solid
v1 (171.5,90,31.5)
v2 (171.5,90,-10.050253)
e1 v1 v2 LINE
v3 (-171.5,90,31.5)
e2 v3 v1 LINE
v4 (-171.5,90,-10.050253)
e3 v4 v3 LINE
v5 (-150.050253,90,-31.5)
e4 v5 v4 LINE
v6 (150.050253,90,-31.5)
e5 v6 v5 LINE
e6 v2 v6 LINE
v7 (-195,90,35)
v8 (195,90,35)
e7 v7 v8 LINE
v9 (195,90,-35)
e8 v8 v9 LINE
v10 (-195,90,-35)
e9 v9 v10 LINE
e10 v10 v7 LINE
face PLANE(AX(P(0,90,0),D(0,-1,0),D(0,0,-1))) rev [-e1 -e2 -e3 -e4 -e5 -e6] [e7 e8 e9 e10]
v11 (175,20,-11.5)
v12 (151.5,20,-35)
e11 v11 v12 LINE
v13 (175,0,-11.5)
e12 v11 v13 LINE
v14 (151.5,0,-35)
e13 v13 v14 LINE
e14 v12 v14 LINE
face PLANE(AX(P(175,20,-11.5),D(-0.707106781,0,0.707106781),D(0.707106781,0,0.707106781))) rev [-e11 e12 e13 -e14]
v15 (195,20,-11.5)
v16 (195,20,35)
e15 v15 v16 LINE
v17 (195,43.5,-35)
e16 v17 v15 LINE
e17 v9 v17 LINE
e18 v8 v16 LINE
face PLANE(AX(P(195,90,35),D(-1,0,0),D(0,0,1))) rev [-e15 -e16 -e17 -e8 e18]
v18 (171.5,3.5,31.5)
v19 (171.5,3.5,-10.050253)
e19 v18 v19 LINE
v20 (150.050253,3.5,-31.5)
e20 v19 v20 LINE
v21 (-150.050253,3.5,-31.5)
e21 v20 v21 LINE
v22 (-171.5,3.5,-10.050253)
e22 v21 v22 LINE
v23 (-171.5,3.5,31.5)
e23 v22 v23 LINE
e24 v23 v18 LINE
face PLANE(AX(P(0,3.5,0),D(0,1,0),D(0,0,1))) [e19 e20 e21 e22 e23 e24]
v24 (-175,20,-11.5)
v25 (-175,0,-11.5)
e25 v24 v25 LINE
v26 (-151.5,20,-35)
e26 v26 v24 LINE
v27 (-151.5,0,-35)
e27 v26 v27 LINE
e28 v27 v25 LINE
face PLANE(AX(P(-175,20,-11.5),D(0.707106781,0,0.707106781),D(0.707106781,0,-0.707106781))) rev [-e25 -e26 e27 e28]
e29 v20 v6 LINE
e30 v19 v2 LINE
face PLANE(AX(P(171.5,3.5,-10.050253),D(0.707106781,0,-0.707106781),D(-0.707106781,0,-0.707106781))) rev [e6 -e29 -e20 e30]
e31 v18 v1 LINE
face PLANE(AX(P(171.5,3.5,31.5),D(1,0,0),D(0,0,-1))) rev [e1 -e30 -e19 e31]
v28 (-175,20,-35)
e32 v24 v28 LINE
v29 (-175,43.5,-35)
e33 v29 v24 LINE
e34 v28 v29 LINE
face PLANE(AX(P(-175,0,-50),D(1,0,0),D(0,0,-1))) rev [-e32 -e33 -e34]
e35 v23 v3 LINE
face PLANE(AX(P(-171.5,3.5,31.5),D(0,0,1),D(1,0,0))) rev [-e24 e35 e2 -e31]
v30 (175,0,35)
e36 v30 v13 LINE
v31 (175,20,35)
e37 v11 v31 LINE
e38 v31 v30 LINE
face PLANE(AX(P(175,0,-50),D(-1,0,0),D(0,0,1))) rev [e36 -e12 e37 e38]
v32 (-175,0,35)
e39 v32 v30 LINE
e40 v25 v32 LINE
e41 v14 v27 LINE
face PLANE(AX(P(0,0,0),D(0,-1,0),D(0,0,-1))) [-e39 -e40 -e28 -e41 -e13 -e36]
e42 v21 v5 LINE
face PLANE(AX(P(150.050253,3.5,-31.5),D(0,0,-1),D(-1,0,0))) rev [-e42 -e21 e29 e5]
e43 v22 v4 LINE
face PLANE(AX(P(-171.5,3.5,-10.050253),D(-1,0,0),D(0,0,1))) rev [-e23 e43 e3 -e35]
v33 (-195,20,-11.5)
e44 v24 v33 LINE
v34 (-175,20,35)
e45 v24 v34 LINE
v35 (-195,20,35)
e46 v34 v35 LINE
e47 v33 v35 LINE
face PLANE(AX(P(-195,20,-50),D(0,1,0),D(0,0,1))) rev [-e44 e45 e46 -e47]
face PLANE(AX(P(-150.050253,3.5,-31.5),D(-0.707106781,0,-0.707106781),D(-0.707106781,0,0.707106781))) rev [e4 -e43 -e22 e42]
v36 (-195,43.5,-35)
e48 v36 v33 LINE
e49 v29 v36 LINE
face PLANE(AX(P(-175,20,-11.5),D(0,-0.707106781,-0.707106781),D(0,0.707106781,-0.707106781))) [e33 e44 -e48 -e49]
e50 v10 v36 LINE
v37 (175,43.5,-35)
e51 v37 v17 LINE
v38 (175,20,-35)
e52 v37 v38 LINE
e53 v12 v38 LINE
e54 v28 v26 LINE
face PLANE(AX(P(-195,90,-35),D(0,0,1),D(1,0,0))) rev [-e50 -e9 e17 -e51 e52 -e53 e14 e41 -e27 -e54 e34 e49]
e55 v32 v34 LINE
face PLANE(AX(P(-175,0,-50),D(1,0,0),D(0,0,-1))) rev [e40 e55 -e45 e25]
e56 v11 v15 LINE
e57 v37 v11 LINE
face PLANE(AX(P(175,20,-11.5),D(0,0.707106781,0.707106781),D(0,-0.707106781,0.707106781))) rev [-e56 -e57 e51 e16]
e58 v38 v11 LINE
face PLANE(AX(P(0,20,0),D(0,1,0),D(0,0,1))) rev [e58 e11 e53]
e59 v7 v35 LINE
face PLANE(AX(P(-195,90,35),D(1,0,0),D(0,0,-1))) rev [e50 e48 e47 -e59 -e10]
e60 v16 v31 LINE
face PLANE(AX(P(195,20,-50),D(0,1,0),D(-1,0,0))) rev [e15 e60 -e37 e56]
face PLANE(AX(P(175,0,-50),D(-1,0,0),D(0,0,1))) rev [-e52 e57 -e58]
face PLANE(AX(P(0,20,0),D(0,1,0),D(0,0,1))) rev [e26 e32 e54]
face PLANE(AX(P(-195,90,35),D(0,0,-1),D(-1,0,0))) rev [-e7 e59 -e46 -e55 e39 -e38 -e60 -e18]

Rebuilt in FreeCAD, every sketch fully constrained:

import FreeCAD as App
import Part
import Sketcher

V = App.Vector

doc = App.newDocument("Part")
params = doc.addObject("Spreadsheet::Sheet", "Params")
for row, (alias, value) in enumerate([
    ("sketch1_width", "390 mm"),
    ("sketch1_height", "70 mm"),
    ("pad1_length", "90 mm"),
    ("sketch2_width", "20 mm"),
    ("pocket1_length", "85 mm"),
    ("sketch3_width", "23.5 mm"),
    ("pocket2_length", "20 mm"),
    ("sketch4_width", "23.5 mm"),
    ("pocket3_length", "20 mm"),
    ("sketch5_width", "343 mm"),
    ("pocket4_length", "86.5 mm"),
], start=1):
    params.set(f"A{row}", alias)
    params.set(f"B{row}", "=" + value)
    params.setAlias(f"B{row}", alias)

body = doc.addObject("PartDesign::Body", "Body")

# Sketch on XZ plane
sketch1 = doc.addObject("Sketcher::SketchObject", "Sketch")
body.addObject(sketch1)
sketch1.AttachmentSupport = (doc.XZ_Plane, [""])
sketch1.MapMode = "FlatFace"
sketch1.addGeometry(Part.LineSegment(V(-195, -35, 0), V(-195, 35, 0)), False)
sketch1.addGeometry(Part.LineSegment(V(-195, 35, 0), V(195, 35, 0)), False)
sketch1.addGeometry(Part.LineSegment(V(195, 35, 0), V(195, -35, 0)), False)
sketch1.addGeometry(Part.LineSegment(V(195, -35, 0), V(-195, -35, 0)), False)
sketch1.addConstraint(Sketcher.Constraint("Coincident", 0, 2, 1, 1))
sketch1.addConstraint(Sketcher.Constraint("Coincident", 1, 2, 2, 1))
sketch1.addConstraint(Sketcher.Constraint("Coincident", 2, 2, 3, 1))
sketch1.addConstraint(Sketcher.Constraint("Coincident", 3, 2, 0, 1))
sketch1.addConstraint(Sketcher.Constraint("Vertical", 0))
sketch1.addConstraint(Sketcher.Constraint("Horizontal", 1))
sketch1.addConstraint(Sketcher.Constraint("Vertical", 2))
sketch1.addConstraint(Sketcher.Constraint("Horizontal", 3))
sketch1.addConstraint(Sketcher.Constraint("Symmetric", 0, 2, 2, 2, -1, 1))
sketch1.addConstraint(Sketcher.Constraint("DistanceX", 1, 1, 1, 2, 390.0))
sketch1.addConstraint(Sketcher.Constraint("DistanceY", 0, 1, 0, 2, 70.0))
sketch1.setExpression("Constraints[9]", "Params.sketch1_width")
sketch1.setExpression("Constraints[10]", "Params.sketch1_height")
pad1 = doc.addObject("PartDesign::Pad", "Pad")
body.addObject(pad1)
pad1.Profile = sketch1
pad1.setExpression("Length", "Params.pad1_length")
pad1.Reversed = True

# Sketch on XY plane
sketch2 = doc.addObject("Sketcher::SketchObject", "Sketch001")
body.addObject(sketch2)
sketch2.AttachmentSupport = (doc.XY_Plane, [""])
sketch2.MapMode = "FlatFace"
sketch2.AttachmentOffset = App.Placement(V(0, 0, 35), App.Rotation())
sketch2.addGeometry(Part.LineSegment(V(175, 20, 0), V(175, 0, 0)), False)
sketch2.addGeometry(Part.LineSegment(V(175, 0, 0), V(195, 0, 0)), False)
sketch2.addGeometry(Part.LineSegment(V(195, 0, 0), V(195, 20, 0)), False)
sketch2.addGeometry(Part.LineSegment(V(195, 20, 0), V(175, 20, 0)), False)
sketch2.addGeometry(Part.LineSegment(V(-195, 20, 0), V(-195, 0, 0)), False)
sketch2.addGeometry(Part.LineSegment(V(-195, 0, 0), V(-175, 0, 0)), False)
sketch2.addGeometry(Part.LineSegment(V(-175, 0, 0), V(-175, 20, 0)), False)
sketch2.addGeometry(Part.LineSegment(V(-175, 20, 0), V(-195, 20, 0)), False)
sketch2.addConstraint(Sketcher.Constraint("Coincident", 0, 2, 1, 1))
sketch2.addConstraint(Sketcher.Constraint("Coincident", 1, 2, 2, 1))
sketch2.addConstraint(Sketcher.Constraint("Coincident", 2, 2, 3, 1))
sketch2.addConstraint(Sketcher.Constraint("Coincident", 3, 2, 0, 1))
sketch2.addConstraint(Sketcher.Constraint("Coincident", 4, 2, 5, 1))
sketch2.addConstraint(Sketcher.Constraint("Coincident", 5, 2, 6, 1))
sketch2.addConstraint(Sketcher.Constraint("Coincident", 6, 2, 7, 1))
sketch2.addConstraint(Sketcher.Constraint("Coincident", 7, 2, 4, 1))
sketch2.addConstraint(Sketcher.Constraint("Vertical", 0))
sketch2.addConstraint(Sketcher.Constraint("Horizontal", 1))
sketch2.addConstraint(Sketcher.Constraint("Vertical", 2))
sketch2.addConstraint(Sketcher.Constraint("Horizontal", 3))
sketch2.addConstraint(Sketcher.Constraint("Vertical", 4))
sketch2.addConstraint(Sketcher.Constraint("Horizontal", 5))
sketch2.addConstraint(Sketcher.Constraint("Vertical", 6))
sketch2.addConstraint(Sketcher.Constraint("Horizontal", 7))
sketch2.addConstraint(Sketcher.Constraint("Symmetric", 1, 2, 4, 2, -1, 1))
sketch2.addConstraint(Sketcher.Constraint("Symmetric", 0, 2, 5, 2, -2))
sketch2.addConstraint(Sketcher.Constraint("Horizontal", 3, 2, 6, 2))
sketch2.addConstraint(Sketcher.Constraint("Equal", 7, 0))
sketch2.addConstraint(Sketcher.Constraint("DistanceX", 1, 1, 1, 2, 20.0))
sketch2.addConstraint(Sketcher.Constraint("DistanceX", -1, 1, 0, 2, 175.0))
sketch2.setExpression("Constraints[20]", "Params.sketch2_width")
pocket1 = doc.addObject("PartDesign::Pocket", "Pocket")
body.addObject(pocket1)
pocket1.Profile = sketch2
pocket1.setExpression("Length", "Params.pocket1_length")

# Sketch on YZ plane
sketch3 = doc.addObject("Sketcher::SketchObject", "Sketch002")
body.addObject(sketch3)
sketch3.AttachmentSupport = (doc.YZ_Plane, [""])
sketch3.MapMode = "FlatFace"
sketch3.AttachmentOffset = App.Placement(V(0, 0, 195), App.Rotation())
sketch3.addGeometry(Part.LineSegment(V(20, -12, 0), V(20, -35, 0)), False)
sketch3.addGeometry(Part.LineSegment(V(20, -35, 0), V(44, -35, 0)), False)
sketch3.addGeometry(Part.LineSegment(V(44, -35, 0), V(20, -12, 0)), False)
sketch3.addConstraint(Sketcher.Constraint("Coincident", 0, 2, 1, 1))
sketch3.addConstraint(Sketcher.Constraint("Coincident", 1, 2, 2, 1))
sketch3.addConstraint(Sketcher.Constraint("Coincident", 2, 2, 0, 1))
sketch3.addConstraint(Sketcher.Constraint("Vertical", 0))
sketch3.addConstraint(Sketcher.Constraint("Horizontal", 1))
sketch3.addConstraint(Sketcher.Constraint("Equal", 1, 0))
sketch3.addConstraint(Sketcher.Constraint("DistanceX", 1, 1, 1, 2, 23.5))
sketch3.addConstraint(Sketcher.Constraint("DistanceX", -1, 1, 0, 2, 20.0))
sketch3.addConstraint(Sketcher.Constraint("DistanceY", 0, 2, -1, 1, 35.0))
sketch3.setExpression("Constraints[6]", "Params.sketch3_width")
pocket2 = doc.addObject("PartDesign::Pocket", "Pocket001")
body.addObject(pocket2)
pocket2.Profile = sketch3
pocket2.setExpression("Length", "Params.pocket2_length")
doc.recompute()

mirrored = doc.addObject("PartDesign::Mirrored", "Mirrored")
body.addObject(mirrored)
mirrored.Originals = [pocket2]
mirrored.MirrorPlane = (doc.YZ_Plane, [""])
body.Tip = mirrored

# Sketch on XZ plane
sketch4 = doc.addObject("Sketcher::SketchObject", "Sketch003")
body.addObject(sketch4)
sketch4.AttachmentSupport = (doc.XZ_Plane, [""])
sketch4.MapMode = "FlatFace"
sketch4.addGeometry(Part.LineSegment(V(-175, -35, 0), V(-152, -35, 0)), False)
sketch4.addGeometry(Part.LineSegment(V(-152, -35, 0), V(-175, -12, 0)), False)
sketch4.addGeometry(Part.LineSegment(V(-175, -12, 0), V(-175, -35, 0)), False)
sketch4.addGeometry(Part.LineSegment(V(175, -12, 0), V(152, -35, 0)), False)
sketch4.addGeometry(Part.LineSegment(V(152, -35, 0), V(175, -35, 0)), False)
sketch4.addGeometry(Part.LineSegment(V(175, -35, 0), V(175, -12, 0)), False)
sketch4.addConstraint(Sketcher.Constraint("Coincident", 0, 2, 1, 1))
sketch4.addConstraint(Sketcher.Constraint("Coincident", 1, 2, 2, 1))
sketch4.addConstraint(Sketcher.Constraint("Coincident", 2, 2, 0, 1))
sketch4.addConstraint(Sketcher.Constraint("Coincident", 3, 2, 4, 1))
sketch4.addConstraint(Sketcher.Constraint("Coincident", 4, 2, 5, 1))
sketch4.addConstraint(Sketcher.Constraint("Coincident", 5, 2, 3, 1))
sketch4.addConstraint(Sketcher.Constraint("Horizontal", 0))
sketch4.addConstraint(Sketcher.Constraint("Vertical", 2))
sketch4.addConstraint(Sketcher.Constraint("Horizontal", 4))
sketch4.addConstraint(Sketcher.Constraint("Vertical", 5))
sketch4.addConstraint(Sketcher.Constraint("Symmetric", 0, 2, 3, 2, -2))
sketch4.addConstraint(Sketcher.Constraint("Symmetric", 1, 2, 5, 2, -2))
sketch4.addConstraint(Sketcher.Constraint("Perpendicular", 1, 3))
sketch4.addConstraint(Sketcher.Constraint("DistanceX", 0, 1, 0, 2, 23.5))
sketch4.addConstraint(Sketcher.Constraint("DistanceY", 0, 2, -1, 1, 35.0))
sketch4.addConstraint(Sketcher.Constraint("DistanceX", 1, 2, -1, 1, 175.0))
sketch4.setExpression("Constraints[13]", "Params.sketch4_width")
pocket3 = doc.addObject("PartDesign::Pocket", "Pocket002")
body.addObject(pocket3)
pocket3.Profile = sketch4
pocket3.setExpression("Length", "Params.pocket3_length")

# Sketch on XZ plane
sketch5 = doc.addObject("Sketcher::SketchObject", "Sketch004")
body.addObject(sketch5)
sketch5.AttachmentSupport = (doc.XZ_Plane, [""])
sketch5.MapMode = "FlatFace"
sketch5.AttachmentOffset = App.Placement(V(0, 0, -90), App.Rotation())
sketch5.addGeometry(Part.LineSegment(V(-172, -10, 0), V(-172, 32, 0)), False)
sketch5.addGeometry(Part.LineSegment(V(-172, 32, 0), V(172, 32, 0)), False)
sketch5.addGeometry(Part.LineSegment(V(172, 32, 0), V(172, -10, 0)), False)
sketch5.addGeometry(Part.LineSegment(V(172, -10, 0), V(150, -32, 0)), False)
sketch5.addGeometry(Part.LineSegment(V(150, -32, 0), V(-150, -32, 0)), False)
sketch5.addGeometry(Part.LineSegment(V(-150, -32, 0), V(-172, -10, 0)), False)
sketch5.addConstraint(Sketcher.Constraint("Coincident", 0, 2, 1, 1))
sketch5.addConstraint(Sketcher.Constraint("Coincident", 1, 2, 2, 1))
sketch5.addConstraint(Sketcher.Constraint("Coincident", 2, 2, 3, 1))
sketch5.addConstraint(Sketcher.Constraint("Coincident", 3, 2, 4, 1))
sketch5.addConstraint(Sketcher.Constraint("Coincident", 4, 2, 5, 1))
sketch5.addConstraint(Sketcher.Constraint("Coincident", 5, 2, 0, 1))
sketch5.addConstraint(Sketcher.Constraint("Vertical", 0))
sketch5.addConstraint(Sketcher.Constraint("Horizontal", 1))
sketch5.addConstraint(Sketcher.Constraint("Vertical", 2))
sketch5.addConstraint(Sketcher.Constraint("Horizontal", 4))
sketch5.addConstraint(Sketcher.Constraint("Symmetric", 2, 2, 5, 2, -2))
sketch5.addConstraint(Sketcher.Constraint("Perpendicular", 3, 5))
sketch5.addConstraint(Sketcher.Constraint("Equal", 3, 5))
sketch5.addConstraint(Sketcher.Constraint("DistanceX", 1, 1, 1, 2, 343.0))
sketch5.addConstraint(Sketcher.Constraint("DistanceY", 3, 2, 1, 2, 63.0))
sketch5.addConstraint(Sketcher.Constraint("DistanceY", -1, 1, 0, 2, 31.5))
sketch5.addConstraint(Sketcher.Constraint("DistanceX", 4, 2, 4, 1, 300.100505))
sketch5.setExpression("Constraints[13]", "Params.sketch5_width")
pocket4 = doc.addObject("PartDesign::Pocket", "Pocket003")
body.addObject(pocket4)
pocket4.Profile = sketch5
pocket4.setExpression("Length", "Params.pocket4_length")
pocket4.Reversed = True

doc.recompute()
